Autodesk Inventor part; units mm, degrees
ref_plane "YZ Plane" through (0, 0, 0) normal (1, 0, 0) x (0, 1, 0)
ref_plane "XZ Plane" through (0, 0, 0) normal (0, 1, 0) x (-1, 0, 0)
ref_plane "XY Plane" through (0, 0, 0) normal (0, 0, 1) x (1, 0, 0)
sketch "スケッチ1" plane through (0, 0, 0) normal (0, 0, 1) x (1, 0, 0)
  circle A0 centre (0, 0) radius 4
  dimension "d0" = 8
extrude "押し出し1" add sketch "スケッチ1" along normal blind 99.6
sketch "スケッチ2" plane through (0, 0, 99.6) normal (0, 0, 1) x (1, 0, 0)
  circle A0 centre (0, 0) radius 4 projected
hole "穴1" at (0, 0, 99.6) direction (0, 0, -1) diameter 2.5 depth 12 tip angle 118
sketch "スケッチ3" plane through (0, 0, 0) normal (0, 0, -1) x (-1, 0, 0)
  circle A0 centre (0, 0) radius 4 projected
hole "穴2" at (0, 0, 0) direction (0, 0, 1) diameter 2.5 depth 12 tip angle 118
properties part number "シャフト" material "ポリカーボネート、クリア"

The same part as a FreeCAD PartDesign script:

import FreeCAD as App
import Part
import Sketcher

V = App.Vector
Q = App.Units.Quantity

doc = App.newDocument("Part")
body = doc.addObject("PartDesign::Body", "Body")

# Sketch on XY plane
sketch1 = body.newObject("Sketcher::SketchObject", "Sketch")
sketch1.AttachmentSupport = (doc.getObject("XY_Plane"), [""])
sketch1.MapMode = "FlatFace"
sketch1.addGeometry(Part.Circle(V(0, 0, 0), V(0, 0, 1), 4), False)
sketch1.addConstraint([
    Sketcher.Constraint("Coincident", 0, 3, -1, 1),
    Sketcher.Constraint("Diameter", 0, Q("8 mm")),
])
pad1 = body.newObject("PartDesign::Pad", "Pad")
pad1.Profile = sketch1
pad1.Length = 99.6

# Sketch on XY plane
sketch2 = body.newObject("Sketcher::SketchObject", "Sketch001")
sketch2.AttachmentSupport = (doc.getObject("XY_Plane"), [""])
sketch2.MapMode = "FlatFace"
sketch2.AttachmentOffset = App.Placement(V(0, 0, 99.6), App.Rotation())
sketch2.addGeometry(Part.Circle(V(0, 0, 0), V(0, 0, 1), 1.2), False)
sketch2.addConstraint([
    Sketcher.Constraint("Coincident", 0, 3, -1, 1),
    Sketcher.Constraint("Diameter", 0, Q("2.5 mm")),
])
doc.recompute()
hole = body.newObject("PartDesign::Hole", "Hole")
hole.Profile = sketch2
hole.ThreadType = "None"
hole.Diameter = 2.5
hole.DepthType = "Dimension"
hole.Depth = 12
hole.DrillPoint = "Angled"
hole.DrillPointAngle = 118

# Sketch on XY plane
sketch3 = body.newObject("Sketcher::SketchObject", "Sketch002")
sketch3.AttachmentSupport = (doc.getObject("XY_Plane"), [""])
sketch3.MapMode = "FlatFace"
sketch3.addGeometry(Part.Circle(V(0, 0, 0), V(0, 0, 1), 1.2), False)
sketch3.addConstraint([
    Sketcher.Constraint("Coincident", 0, 3, -1, 1),
    Sketcher.Constraint("Diameter", 0, Q("2.5 mm")),
])
doc.recompute()
hole2 = body.newObject("PartDesign::Hole", "Hole001")
hole2.Profile = sketch3
hole2.ThreadType = "None"
hole2.Diameter = 2.5
hole2.DepthType = "Dimension"
hole2.Depth = 12
hole2.DrillPoint = "Angled"
hole2.DrillPointAngle = 118
hole2.Reversed = True

doc.recompute()
